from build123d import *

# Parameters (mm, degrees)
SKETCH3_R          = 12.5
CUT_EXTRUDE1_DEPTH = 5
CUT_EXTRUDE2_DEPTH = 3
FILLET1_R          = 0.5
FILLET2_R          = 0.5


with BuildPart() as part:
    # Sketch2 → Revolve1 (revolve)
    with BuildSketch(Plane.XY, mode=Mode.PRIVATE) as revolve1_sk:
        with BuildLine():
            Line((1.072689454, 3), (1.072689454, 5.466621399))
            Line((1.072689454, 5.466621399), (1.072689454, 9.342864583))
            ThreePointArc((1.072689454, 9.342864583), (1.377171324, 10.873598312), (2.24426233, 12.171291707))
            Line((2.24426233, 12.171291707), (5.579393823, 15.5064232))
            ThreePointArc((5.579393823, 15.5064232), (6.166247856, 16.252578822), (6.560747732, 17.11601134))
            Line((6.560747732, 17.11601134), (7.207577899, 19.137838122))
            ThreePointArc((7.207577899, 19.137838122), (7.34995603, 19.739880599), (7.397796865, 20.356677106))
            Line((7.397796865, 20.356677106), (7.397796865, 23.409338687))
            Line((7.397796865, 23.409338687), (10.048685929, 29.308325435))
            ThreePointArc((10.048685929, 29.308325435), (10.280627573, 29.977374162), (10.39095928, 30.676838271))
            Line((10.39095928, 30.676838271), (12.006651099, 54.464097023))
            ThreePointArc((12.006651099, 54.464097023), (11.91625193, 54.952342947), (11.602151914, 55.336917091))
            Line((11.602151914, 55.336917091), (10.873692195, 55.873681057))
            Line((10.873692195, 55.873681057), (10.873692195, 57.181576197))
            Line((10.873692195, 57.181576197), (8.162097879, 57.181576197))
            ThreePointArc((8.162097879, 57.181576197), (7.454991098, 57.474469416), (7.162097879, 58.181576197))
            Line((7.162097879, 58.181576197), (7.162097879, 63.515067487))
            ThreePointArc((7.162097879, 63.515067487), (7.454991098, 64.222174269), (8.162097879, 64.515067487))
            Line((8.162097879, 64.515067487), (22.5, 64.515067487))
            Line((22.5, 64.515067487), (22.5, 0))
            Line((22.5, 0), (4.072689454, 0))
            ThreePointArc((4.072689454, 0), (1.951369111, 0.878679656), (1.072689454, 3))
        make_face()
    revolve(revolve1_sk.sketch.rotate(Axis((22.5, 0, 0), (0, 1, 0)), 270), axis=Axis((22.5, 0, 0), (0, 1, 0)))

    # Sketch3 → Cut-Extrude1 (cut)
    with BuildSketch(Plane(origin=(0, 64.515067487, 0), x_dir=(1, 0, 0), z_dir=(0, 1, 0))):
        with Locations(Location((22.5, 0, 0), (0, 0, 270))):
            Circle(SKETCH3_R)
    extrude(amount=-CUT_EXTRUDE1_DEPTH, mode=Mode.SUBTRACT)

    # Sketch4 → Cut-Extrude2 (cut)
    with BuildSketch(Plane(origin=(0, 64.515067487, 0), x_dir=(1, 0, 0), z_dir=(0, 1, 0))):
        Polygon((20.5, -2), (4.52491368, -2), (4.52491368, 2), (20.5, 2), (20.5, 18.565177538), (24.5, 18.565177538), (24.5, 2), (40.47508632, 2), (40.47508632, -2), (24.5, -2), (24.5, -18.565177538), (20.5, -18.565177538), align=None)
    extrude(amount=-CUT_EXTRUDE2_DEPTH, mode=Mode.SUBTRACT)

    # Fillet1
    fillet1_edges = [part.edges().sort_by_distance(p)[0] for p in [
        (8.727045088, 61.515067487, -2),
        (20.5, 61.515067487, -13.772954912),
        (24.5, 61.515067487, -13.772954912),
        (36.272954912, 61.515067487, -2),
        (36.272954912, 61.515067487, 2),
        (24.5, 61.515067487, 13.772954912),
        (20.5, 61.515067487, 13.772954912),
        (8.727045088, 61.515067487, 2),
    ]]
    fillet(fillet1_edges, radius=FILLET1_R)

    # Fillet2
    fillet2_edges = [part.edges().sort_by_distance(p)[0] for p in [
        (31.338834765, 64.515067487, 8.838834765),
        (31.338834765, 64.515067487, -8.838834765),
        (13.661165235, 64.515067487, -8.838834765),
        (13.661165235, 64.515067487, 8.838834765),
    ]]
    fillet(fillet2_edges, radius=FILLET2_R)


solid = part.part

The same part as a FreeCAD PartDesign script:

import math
import FreeCAD as App
import Part
import Sketcher

V = App.Vector


def edges_at(feature, points):
    """Names of the edges that pass closest to the given points."""
    edges = feature.Shape.Edges
    near = lambda p: min(range(len(edges)), key=lambda i: edges[i].distToShape(Part.Vertex(*p))[0])
    return sorted({f"Edge{near(p) + 1}" for p in points})

doc = App.newDocument("Part")
body = doc.addObject("PartDesign::Body", "Body")

# Sketch on XY plane
sketch1 = doc.addObject("Sketcher::SketchObject", "Sketch")
body.addObject(sketch1)
sketch1.AttachmentSupport = (doc.XY_Plane, [""])
sketch1.MapMode = "FlatFace"
sketch1.addGeometry(Part.LineSegment(V(1.072689, 9.342865, 0), V(1.072689, 3, 0)), False)
sketch1.addGeometry(Part.ArcOfCircle(Part.Circle(V(4.072689, 3, 0), V(0, 0, 1), 3), math.radians(180), math.radians(270)), False)
sketch1.addGeometry(Part.LineSegment(V(4.072689, 0, 0), V(22.5, 0, 0)), False)
sketch1.addGeometry(Part.LineSegment(V(22.5, 0, 0), V(22.5, 64.515067, 0)), False)
sketch1.addGeometry(Part.LineSegment(V(22.5, 64.515067, 0), V(8.162098, 64.515067, 0)), False)
sketch1.addGeometry(Part.ArcOfCircle(Part.Circle(V(8.162098, 63.515067, 0), V(0, 0, 1), 1), math.radians(90), math.radians(180)), False)
sketch1.addGeometry(Part.LineSegment(V(7.162098, 63.515067, 0), V(7.162098, 58.181576, 0)), False)
sketch1.addGeometry(Part.ArcOfCircle(Part.Circle(V(8.162098, 58.181576, 0), V(0, 0, 1), 1), math.radians(-180), math.radians(-90)), False)
sketch1.addGeometry(Part.LineSegment(V(8.162098, 57.181576, 0), V(10.873692, 57.181576, 0)), False)
sketch1.addGeometry(Part.LineSegment(V(10.873692, 57.181576, 0), V(10.873692, 55.873681, 0)), False)
sketch1.addGeometry(Part.LineSegment(V(10.873692, 55.873681, 0), V(11.602152, 55.336917, 0)), False)
sketch1.addGeometry(Part.ArcOfCircle(Part.Circle(V(11.00895, 54.531863, 0), V(0, 0, 1), 1), math.radians(-3.885709), math.radians(53.615435)), False)
sketch1.addGeometry(Part.LineSegment(V(12.006651, 54.464097, 0), V(10.390959, 30.676838, 0)), False)
sketch1.addGeometry(Part.ArcOfCircle(Part.Circle(V(6.400154, 30.947904, 0), V(0, 0, 1), 4), math.radians(-24.198217), math.radians(-3.885708)), False)
sketch1.addGeometry(Part.LineSegment(V(10.048686, 29.308325, 0), V(7.397797, 23.409339, 0)), False)
sketch1.addGeometry(Part.LineSegment(V(7.397797, 23.409339, 0), V(7.397797, 20.356677, 0)), False)
sketch1.addGeometry(Part.ArcOfCircle(Part.Circle(V(3.397797, 20.356677, 0), V(0, 0, 1), 4), math.radians(-17.740702), math.radians(0)), False)
sketch1.addGeometry(Part.LineSegment(V(7.207578, 19.137838, 0), V(6.560748, 17.116011, 0)), False)
sketch1.addGeometry(Part.ArcOfCircle(Part.Circle(V(2.750967, 18.33485, 0), V(0, 0, 1), 4), math.radians(-45), math.radians(-17.740702)), False)
sketch1.addGeometry(Part.LineSegment(V(5.579394, 15.506423, 0), V(2.244262, 12.171292, 0)), False)
sketch1.addGeometry(Part.ArcOfCircle(Part.Circle(V(5.072689, 9.342865, 0), V(0, 0, 1), 4), math.radians(135), math.radians(180)), False)
sketch1.addGeometry(Part.LineSegment(V(22.5, 0, 0), V(22.5, 64.515067, 0)), True)  # axis
sketch1.addConstraint(Sketcher.Constraint("Coincident", 0, 2, 1, 1))
sketch1.addConstraint(Sketcher.Constraint("Coincident", 1, 2, 2, 1))
sketch1.addConstraint(Sketcher.Constraint("Coincident", 2, 2, 3, 1))
sketch1.addConstraint(Sketcher.Constraint("Coincident", 3, 2, 4, 1))
sketch1.addConstraint(Sketcher.Constraint("Coincident", 4, 2, 5, 1))
sketch1.addConstraint(Sketcher.Constraint("Coincident", 5, 2, 6, 1))
sketch1.addConstraint(Sketcher.Constraint("Coincident", 6, 2, 7, 1))
sketch1.addConstraint(Sketcher.Constraint("Coincident", 7, 2, 8, 1))
sketch1.addConstraint(Sketcher.Constraint("Coincident", 8, 2, 9, 1))
sketch1.addConstraint(Sketcher.Constraint("Coincident", 9, 2, 10, 1))
sketch1.addConstraint(Sketcher.Constraint("Coincident", 10, 2, 11, 2))
sketch1.addConstraint(Sketcher.Constraint("Coincident", 11, 1, 12, 1))
sketch1.addConstraint(Sketcher.Constraint("Coincident", 12, 2, 13, 2))
sketch1.addConstraint(Sketcher.Constraint("Coincident", 13, 1, 14, 1))
sketch1.addConstraint(Sketcher.Constraint("Coincident", 14, 2, 15, 1))
sketch1.addConstraint(Sketcher.Constraint("Coincident", 15, 2, 16, 2))
sketch1.addConstraint(Sketcher.Constraint("Coincident", 16, 1, 17, 1))
sketch1.addConstraint(Sketcher.Constraint("Coincident", 17, 2, 18, 2))
sketch1.addConstraint(Sketcher.Constraint("Coincident", 18, 1, 19, 1))
sketch1.addConstraint(Sketcher.Constraint("Coincident", 19, 2, 20, 1))
sketch1.addConstraint(Sketcher.Constraint("Coincident", 20, 2, 0, 1))
sketch1.addConstraint(Sketcher.Constraint("Vertical", 0))
sketch1.addConstraint(Sketcher.Constraint("Horizontal", 2))
sketch1.addConstraint(Sketcher.Constraint("Vertical", 3))
sketch1.addConstraint(Sketcher.Constraint("Horizontal", 4))
sketch1.addConstraint(Sketcher.Constraint("Vertical", 6))
sketch1.addConstraint(Sketcher.Constraint("Horizontal", 8))
sketch1.addConstraint(Sketcher.Constraint("Vertical", 9))
sketch1.addConstraint(Sketcher.Constraint("Vertical", 15))
sketch1.addConstraint(Sketcher.Constraint("Vertical", 21))
sketch1.addConstraint(Sketcher.Constraint("Coincident", 21, 1, 2, 2))
sketch1.addConstraint(Sketcher.Constraint("PointOnObject", 1, 2, -1))
sketch1.addConstraint(Sketcher.Constraint("Radius", 1, 3.0))
sketch1.addConstraint(Sketcher.Constraint("Radius", 5, 1.0))
sketch1.addConstraint(Sketcher.Constraint("Radius", 7, 1.0))
sketch1.addConstraint(Sketcher.Constraint("Radius", 11, 1.0))
sketch1.addConstraint(Sketcher.Constraint("Radius", 13, 4.0))
sketch1.addConstraint(Sketcher.Constraint("Radius", 16, 4.0))
sketch1.addConstraint(Sketcher.Constraint("Radius", 18, 4.0))
sketch1.addConstraint(Sketcher.Constraint("Radius", 20, 4.0))
sketch1.addConstraint(Sketcher.Constraint("DistanceY", -1, 1, 0, 2, 3.0))
sketch1.addConstraint(Sketcher.Constraint("DistanceX", 0, 2, 1, 2, 3.0))
sketch1.addConstraint(Sketcher.Constraint("DistanceX", 5, 2, 4, 2, 1.0))
sketch1.addConstraint(Sketcher.Constraint("DistanceY", 5, 2, 4, 2, 1.0))
sketch1.addConstraint(Sketcher.Constraint("DistanceX", 6, 2, 7, 2, 1.0))
sketch1.addConstraint(Sketcher.Constraint("DistanceY", 7, 2, 6, 2, 1.0))
sketch1.addConstraint(Sketcher.Constraint("DistanceY", 5, 3, 21, 2, 1.0))
sketch1.addConstraint(Sketcher.Constraint("DistanceX", -1, 1, 2, 2, 22.5))
sketch1.addConstraint(Sketcher.Constraint("DistanceY", 20, 3, 11, 3, 45.188999))
sketch1.addConstraint(Sketcher.Constraint("DistanceX", 2, 1, 2, 2, 18.427311))
sketch1.addConstraint(Sketcher.Constraint("DistanceY", 6, 2, 6, 1, 5.333491))
sketch1.addConstraint(Sketcher.Constraint("DistanceY", 15, 2, 15, 1, 3.052662))
sketch1.addConstraint(Sketcher.Constraint("DistanceX", 16, 3, 7, 3, 4.764301))
sketch1.addConstraint(Sketcher.Constraint("DistanceY", 16, 3, 7, 3, 37.824899))
sketch1.addConstraint(Sketcher.Constraint("DistanceX", 10, 2, 11, 1, 0.404499))
sketch1.addConstraint(Sketcher.Constraint("DistanceX", 11, 3, 11, 1, 0.997701))
sketch1.addConstraint(Sketcher.Constraint("DistanceY", 14, 2, 12, 2, 7.2675))
sketch1.addConstraint(Sketcher.Constraint("DistanceY", 16, 1, 14, 2, 4.271501))
sketch1.addConstraint(Sketcher.Constraint("Distance", 10, 0.904859))
sketch1.addConstraint(Sketcher.Constraint("Distance", 19, 4.716588))
sketch1.addConstraint(Sketcher.Constraint("DistanceX", 4, 2, 4, 1, 14.337902))
sketch1.addConstraint(Sketcher.Constraint("DistanceX", 8, 1, 8, 2, 2.711594))
sketch1.addConstraint(Sketcher.Constraint("DistanceY", 0, 2, 0, 1, 6.342865))
sketch1.addConstraint(Sketcher.Constraint("DistanceY", 3, 1, 3, 2, 64.515067))
sketch1.addConstraint(Sketcher.Constraint("DistanceY", 9, 2, 9, 1, 1.307895))
sketch1.addConstraint(Sketcher.Constraint("DistanceX", -1, 1, 11, 3, 11.00895))
sketch1.addConstraint(Sketcher.Constraint("DistanceY", -1, 1, 18, 3, 18.33485))
sketch1.addConstraint(Sketcher.Constraint("DistanceX", -1, 1, 12, 2, 10.390959))
sketch1.addConstraint(Sketcher.Constraint("DistanceY", -1, 1, 12, 2, 30.676838))
sketch1.addConstraint(Sketcher.Constraint("DistanceY", -1, 1, 17, 2, 17.116011))
sketch1.addConstraint(Sketcher.Constraint("DistanceY", -1, 1, 19, 2, 12.171292))
sketch1.addConstraint(Sketcher.Constraint("DistanceY", 13, 3, 11, 3, 23.583959))
sketch1.addConstraint(Sketcher.Constraint("DistanceX", 18, 3, 16, 3, 0.64683))
sketch1.addConstraint(Sketcher.Constraint("DistanceX", 13, 3, 13, 1, 3.648531))
revolution = doc.addObject("PartDesign::Revolution", "Revolution")
body.addObject(revolution)
revolution.Profile = sketch1
revolution.ReferenceAxis = (sketch1, ["Axis0"])
revolution.Angle = 360

# Sketch on XZ plane
sketch2 = doc.addObject("Sketcher::SketchObject", "Sketch001")
body.addObject(sketch2)
sketch2.AttachmentSupport = (doc.XZ_Plane, [""])
sketch2.MapMode = "FlatFace"
sketch2.AttachmentOffset = App.Placement(V(0, 0, -64.515067), App.Rotation())
sketch2.addGeometry(Part.Circle(V(22.5, 0, 0), V(0, 0, 1), 12.5), False)
sketch2.addConstraint(Sketcher.Constraint("PointOnObject", 0, 3, -1))
sketch2.addConstraint(Sketcher.Constraint("Diameter", 0, 25.0))
sketch2.addConstraint(Sketcher.Constraint("DistanceX", -1, 1, 0, 3, 22.5))
pocket1 = doc.addObject("PartDesign::Pocket", "Pocket")
body.addObject(pocket1)
pocket1.Profile = sketch2
pocket1.Length = 5
pocket1.Reversed = True

# Sketch on XZ plane
sketch3 = doc.addObject("Sketcher::SketchObject", "Sketch002")
body.addObject(sketch3)
sketch3.AttachmentSupport = (doc.XZ_Plane, [""])
sketch3.MapMode = "FlatFace"
sketch3.AttachmentOffset = App.Placement(V(0, 0, -64.515067), App.Rotation())
sketch3.addGeometry(Part.LineSegment(V(4.524914, 2, 0), V(20.5, 2, 0)), False)
sketch3.addGeometry(Part.LineSegment(V(20.5, 2, 0), V(20.5, 18.565178, 0)), False)
sketch3.addGeometry(Part.LineSegment(V(20.5, 18.565178, 0), V(24.5, 18.565178, 0)), False)
sketch3.addGeometry(Part.LineSegment(V(24.5, 18.565178, 0), V(24.5, 2, 0)), False)
sketch3.addGeometry(Part.LineSegment(V(24.5, 2, 0), V(40.475086, 2, 0)), False)
sketch3.addGeometry(Part.LineSegment(V(40.475086, 2, 0), V(40.475086, -2, 0)), False)
sketch3.addGeometry(Part.LineSegment(V(40.475086, -2, 0), V(24.5, -2, 0)), False)
sketch3.addGeometry(Part.LineSegment(V(24.5, -2, 0), V(24.5, -18.565178, 0)), False)
sketch3.addGeometry(Part.LineSegment(V(24.5, -18.565178, 0), V(20.5, -18.565178, 0)), False)
sketch3.addGeometry(Part.LineSegment(V(20.5, -18.565178, 0), V(20.5, -2, 0)), False)
sketch3.addGeometry(Part.LineSegment(V(20.5, -2, 0), V(4.524914, -2, 0)), False)
sketch3.addGeometry(Part.LineSegment(V(4.524914, -2, 0), V(4.524914, 2, 0)), False)
sketch3.addConstraint(Sketcher.Constraint("Coincident", 0, 2, 1, 1))
sketch3.addConstraint(Sketcher.Constraint("Coincident", 1, 2, 2, 1))
sketch3.addConstraint(Sketcher.Constraint("Coincident", 2, 2, 3, 1))
sketch3.addConstraint(Sketcher.Constraint("Coincident", 3, 2, 4, 1))
sketch3.addConstraint(Sketcher.Constraint("Coincident", 4, 2, 5, 1))
sketch3.addConstraint(Sketcher.Constraint("Coincident", 5, 2, 6, 1))
sketch3.addConstraint(Sketcher.Constraint("Coincident", 6, 2, 7, 1))
sketch3.addConstraint(Sketcher.Constraint("Coincident", 7, 2, 8, 1))
sketch3.addConstraint(Sketcher.Constraint("Coincident", 8, 2, 9, 1))
sketch3.addConstraint(Sketcher.Constraint("Coincident", 9, 2, 10, 1))
sketch3.addConstraint(Sketcher.Constraint("Coincident", 10, 2, 11, 1))
sketch3.addConstraint(Sketcher.Constraint("Coincident", 11, 2, 0, 1))
sketch3.addConstraint(Sketcher.Constraint("Horizontal", 0))
sketch3.addConstraint(Sketcher.Constraint("Vertical", 1))
sketch3.addConstraint(Sketcher.Constraint("Horizontal", 2))
sketch3.addConstraint(Sketcher.Constraint("Vertical", 3))
sketch3.addConstraint(Sketcher.Constraint("Horizontal", 4))
sketch3.addConstraint(Sketcher.Constraint("Vertical", 5))
sketch3.addConstraint(Sketcher.Constraint("Horizontal", 6))
sketch3.addConstraint(Sketcher.Constraint("Vertical", 7))
sketch3.addConstraint(Sketcher.Constraint("Horizontal", 8))
sketch3.addConstraint(Sketcher.Constraint("Vertical", 9))
sketch3.addConstraint(Sketcher.Constraint("Horizontal", 10))
sketch3.addConstraint(Sketcher.Constraint("Vertical", 11))
sketch3.addConstraint(Sketcher.Constraint("Symmetric", 3, 2, 6, 2, -1))
sketch3.addConstraint(Sketcher.Constraint("Symmetric", 1, 2, 8, 2, -1))
sketch3.addConstraint(Sketcher.Constraint("Horizontal", 0, 2, 3, 2))
sketch3.addConstraint(Sketcher.Constraint("Horizontal", 6, 2, 9, 2))
sketch3.addConstraint(Sketcher.Constraint("Equal", 0, 4))
sketch3.addConstraint(Sketcher.Constraint("Equal", 8, 5))
sketch3.addConstraint(Sketcher.Constraint("DistanceX", 2, 1, 2, 2, 4.0))
sketch3.addConstraint(Sketcher.Constraint("DistanceX", -1, 1, 0, 2, 20.5))
sketch3.addConstraint(Sketcher.Constraint("DistanceX", 0, 1, 0, 2, 15.975086))
sketch3.addConstraint(Sketcher.Constraint("DistanceY", 1, 1, 1, 2, 16.565178))
pocket2 = doc.addObject("PartDesign::Pocket", "Pocket001")
body.addObject(pocket2)
pocket2.Profile = sketch3
pocket2.Length = 3
pocket2.Reversed = True
doc.recompute()

fillet = doc.addObject("PartDesign::Fillet", "Fillet")
body.addObject(fillet)
fillet.Base = (pocket2, edges_at(pocket2, [
    (8.727, 61.515, -2),
    (20.5, 61.515, -13.773),
    (24.5, 61.515, -13.773),
    (36.273, 61.515, -2),
    (36.273, 61.515, 2),
    (24.5, 61.515, 13.773),
    (20.5, 61.515, 13.773),
    (8.727, 61.515, 2),
]))
fillet.Radius = 0.5
doc.recompute()

fillet2 = doc.addObject("PartDesign::Fillet", "Fillet001")
body.addObject(fillet2)
fillet2.Base = (fillet, edges_at(fillet, [
    (31.339, 64.515, 8.839),
    (31.339, 64.515, -8.839),
    (13.661, 64.515, -8.839),
    (13.661, 64.515, 8.839),
]))
fillet2.Radius = 0.5

doc.recompute()
